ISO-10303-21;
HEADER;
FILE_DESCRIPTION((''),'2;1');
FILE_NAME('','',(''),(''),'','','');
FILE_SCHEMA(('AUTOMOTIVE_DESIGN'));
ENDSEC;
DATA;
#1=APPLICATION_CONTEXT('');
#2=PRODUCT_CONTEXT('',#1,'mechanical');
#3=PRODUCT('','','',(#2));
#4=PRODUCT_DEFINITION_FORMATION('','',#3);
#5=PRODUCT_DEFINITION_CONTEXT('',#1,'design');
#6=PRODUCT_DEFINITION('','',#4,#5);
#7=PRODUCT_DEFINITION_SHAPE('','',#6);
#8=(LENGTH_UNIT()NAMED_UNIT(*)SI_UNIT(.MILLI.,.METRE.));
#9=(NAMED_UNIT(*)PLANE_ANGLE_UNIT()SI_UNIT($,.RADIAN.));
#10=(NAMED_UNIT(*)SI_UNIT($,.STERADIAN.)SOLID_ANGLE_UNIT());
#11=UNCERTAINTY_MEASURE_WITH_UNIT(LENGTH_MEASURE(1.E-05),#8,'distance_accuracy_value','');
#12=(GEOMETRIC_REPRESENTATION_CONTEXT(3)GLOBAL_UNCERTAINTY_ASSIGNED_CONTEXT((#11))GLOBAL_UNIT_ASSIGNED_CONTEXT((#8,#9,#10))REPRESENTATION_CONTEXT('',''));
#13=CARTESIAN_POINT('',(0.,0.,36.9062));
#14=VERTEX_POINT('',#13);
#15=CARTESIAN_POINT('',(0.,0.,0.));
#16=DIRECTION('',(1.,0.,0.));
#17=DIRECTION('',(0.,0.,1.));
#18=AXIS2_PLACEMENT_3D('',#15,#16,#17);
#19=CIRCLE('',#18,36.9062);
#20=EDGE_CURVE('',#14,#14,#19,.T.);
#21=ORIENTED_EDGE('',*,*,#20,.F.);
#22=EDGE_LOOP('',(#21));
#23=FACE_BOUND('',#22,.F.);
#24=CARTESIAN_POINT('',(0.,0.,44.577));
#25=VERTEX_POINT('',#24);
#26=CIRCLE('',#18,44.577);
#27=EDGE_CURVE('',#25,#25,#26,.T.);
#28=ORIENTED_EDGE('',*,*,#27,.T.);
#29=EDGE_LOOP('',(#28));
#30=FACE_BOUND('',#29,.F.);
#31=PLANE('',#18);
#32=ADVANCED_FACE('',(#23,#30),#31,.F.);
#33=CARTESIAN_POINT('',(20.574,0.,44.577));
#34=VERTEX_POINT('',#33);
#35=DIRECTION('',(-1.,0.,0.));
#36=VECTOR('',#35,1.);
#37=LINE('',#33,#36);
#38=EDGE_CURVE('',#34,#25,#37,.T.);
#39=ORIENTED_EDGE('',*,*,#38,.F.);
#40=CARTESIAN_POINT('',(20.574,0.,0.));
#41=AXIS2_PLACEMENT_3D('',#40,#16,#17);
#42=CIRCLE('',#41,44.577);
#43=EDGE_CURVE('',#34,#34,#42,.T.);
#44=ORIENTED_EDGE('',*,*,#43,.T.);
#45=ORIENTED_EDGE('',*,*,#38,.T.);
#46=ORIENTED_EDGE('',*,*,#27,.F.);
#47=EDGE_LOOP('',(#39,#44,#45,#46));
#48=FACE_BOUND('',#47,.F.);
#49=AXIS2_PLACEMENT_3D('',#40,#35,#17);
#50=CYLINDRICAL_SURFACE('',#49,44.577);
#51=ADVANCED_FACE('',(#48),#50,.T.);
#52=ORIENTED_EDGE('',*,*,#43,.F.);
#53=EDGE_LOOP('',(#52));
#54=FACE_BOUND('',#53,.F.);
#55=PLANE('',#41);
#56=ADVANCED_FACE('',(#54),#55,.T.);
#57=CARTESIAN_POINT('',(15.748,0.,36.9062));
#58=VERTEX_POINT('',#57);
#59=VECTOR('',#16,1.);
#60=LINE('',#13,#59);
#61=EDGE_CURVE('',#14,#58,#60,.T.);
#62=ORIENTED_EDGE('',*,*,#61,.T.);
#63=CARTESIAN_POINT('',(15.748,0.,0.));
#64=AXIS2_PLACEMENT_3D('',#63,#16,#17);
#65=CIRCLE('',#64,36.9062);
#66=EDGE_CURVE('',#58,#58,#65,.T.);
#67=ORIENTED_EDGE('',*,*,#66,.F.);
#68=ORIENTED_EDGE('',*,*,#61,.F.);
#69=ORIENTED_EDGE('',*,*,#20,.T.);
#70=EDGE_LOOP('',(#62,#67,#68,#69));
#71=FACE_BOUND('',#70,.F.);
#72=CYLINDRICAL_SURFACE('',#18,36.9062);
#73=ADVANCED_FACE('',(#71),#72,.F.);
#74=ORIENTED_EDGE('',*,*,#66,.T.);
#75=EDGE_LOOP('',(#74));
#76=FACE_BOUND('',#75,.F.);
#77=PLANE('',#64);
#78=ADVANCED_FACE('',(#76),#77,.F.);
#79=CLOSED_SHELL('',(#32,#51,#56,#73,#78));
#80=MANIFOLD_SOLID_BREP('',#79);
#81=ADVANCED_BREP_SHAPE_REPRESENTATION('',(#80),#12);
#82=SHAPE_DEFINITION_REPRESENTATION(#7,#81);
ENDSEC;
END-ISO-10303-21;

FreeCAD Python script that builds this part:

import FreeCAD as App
import Part
import Sketcher

V = App.Vector
Q = App.Units.Quantity


def add_polygon(sketch, points):
    """Adds a closed chain of lines whose ends are joined by coincident constraints."""
    first, n = sketch.GeometryCount, len(points)
    for a, b in zip(points, points[1:] + points[:1]):
        sketch.addGeometry(Part.LineSegment(App.Vector(*a, 0), App.Vector(*b, 0)), False)
    for i in range(n):
        sketch.addConstraint(Sketcher.Constraint("Coincident", first + i, 2, first + (i + 1) % n, 1))

doc = App.newDocument("Part")
body = doc.addObject("PartDesign::Body", "Body")

sketch1 = body.newObject("Sketcher::SketchObject", "Sketch")
sketch1.AttachmentSupport = (doc.getObject("XZ_Plane"), [""])
sketch1.MapMode = "FlatFace"
add_polygon(sketch1, [(0, 36.9), (0, 44.6), (20.6, 44.6), (20.6, 0), (15.7, 0), (15.7, 36.9)])
sketch1.addConstraint(Sketcher.Constraint("Vertical", 0))
sketch1.addConstraint(Sketcher.Constraint("Horizontal", 1))
sketch1.addConstraint(Sketcher.Constraint("Vertical", 2))
sketch1.addConstraint(Sketcher.Constraint("Horizontal", 3))
sketch1.addConstraint(Sketcher.Constraint("Vertical", 4))
sketch1.addConstraint(Sketcher.Constraint("Horizontal", 5))
sketch1.addConstraint(Sketcher.Constraint("PointOnObject", 0, 2, -2))
sketch1.addConstraint(Sketcher.Constraint("PointOnObject", 2, 2, -1))
sketch1.addConstraint(Sketcher.Constraint("DistanceX", 3, 2, 3, 1, Q("0.19 in")))
sketch1.addConstraint(Sketcher.Constraint("DistanceX", 5, 2, 5, 1, Q("0.62 in")))
sketch1.addConstraint(Sketcher.Constraint("DistanceY", 0, 1, 0, 2, Q("0.302 in")))
sketch1.addConstraint(Sketcher.Constraint("DistanceY", 2, 2, 2, 1, Q("1.755 in")))
revolution = body.newObject("PartDesign::Revolution", "Revolution")
revolution.Profile = sketch1
revolution.ReferenceAxis = (sketch1, ["H_Axis"])
revolution.Angle = 360

doc.recompute()
